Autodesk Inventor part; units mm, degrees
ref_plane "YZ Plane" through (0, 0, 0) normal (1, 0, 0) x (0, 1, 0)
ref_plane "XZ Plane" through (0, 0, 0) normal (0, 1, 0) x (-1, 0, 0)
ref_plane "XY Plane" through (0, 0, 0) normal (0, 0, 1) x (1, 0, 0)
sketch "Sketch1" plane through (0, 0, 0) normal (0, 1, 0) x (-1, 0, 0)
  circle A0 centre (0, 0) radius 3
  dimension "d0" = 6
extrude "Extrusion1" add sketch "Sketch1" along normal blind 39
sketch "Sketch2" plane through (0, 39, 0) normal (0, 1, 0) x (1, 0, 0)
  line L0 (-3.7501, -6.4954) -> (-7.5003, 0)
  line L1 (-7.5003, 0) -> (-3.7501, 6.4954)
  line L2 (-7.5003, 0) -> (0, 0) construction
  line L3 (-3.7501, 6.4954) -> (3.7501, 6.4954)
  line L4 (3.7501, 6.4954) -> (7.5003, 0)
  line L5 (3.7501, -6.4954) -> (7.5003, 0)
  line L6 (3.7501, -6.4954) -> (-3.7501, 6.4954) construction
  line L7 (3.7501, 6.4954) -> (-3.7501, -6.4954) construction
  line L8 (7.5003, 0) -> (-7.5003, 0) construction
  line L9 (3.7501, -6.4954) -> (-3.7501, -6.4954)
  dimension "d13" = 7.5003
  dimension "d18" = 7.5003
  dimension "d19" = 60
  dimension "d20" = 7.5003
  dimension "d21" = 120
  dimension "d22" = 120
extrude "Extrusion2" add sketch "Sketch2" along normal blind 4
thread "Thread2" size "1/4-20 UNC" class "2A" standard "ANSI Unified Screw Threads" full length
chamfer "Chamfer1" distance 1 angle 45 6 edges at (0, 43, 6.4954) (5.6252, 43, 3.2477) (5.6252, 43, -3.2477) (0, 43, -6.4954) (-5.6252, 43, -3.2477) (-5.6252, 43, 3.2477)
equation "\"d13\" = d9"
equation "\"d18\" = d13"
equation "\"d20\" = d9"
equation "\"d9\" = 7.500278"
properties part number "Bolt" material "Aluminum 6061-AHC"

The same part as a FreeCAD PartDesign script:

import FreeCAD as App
import Part
import Sketcher

V = App.Vector
Q = App.Units.Quantity


def edges_at(feature, points):
    """Names of the edges that pass closest to the given points."""
    edges = feature.Shape.Edges
    near = lambda p: min(range(len(edges)), key=lambda i: edges[i].distToShape(Part.Vertex(*p))[0])
    return sorted({f"Edge{near(p) + 1}" for p in points})

doc = App.newDocument("Part")
body = doc.addObject("PartDesign::Body", "Body")

sketch1 = doc.addObject("Sketcher::SketchObject", "Sketch")
body.addObject(sketch1)
sketch1.AttachmentSupport = (doc.XZ_Plane, [""])
sketch1.MapMode = "FlatFace"
sketch1.addGeometry(Part.Circle(V(0, 0, 0), V(0, 0, 1), 3), False)
sketch1.addConstraint(Sketcher.Constraint("Coincident", 0, 3, -1, 1))
sketch1.addConstraint(Sketcher.Constraint("Diameter", 0, 6.0))
pad1 = doc.addObject("PartDesign::Pad", "Pad")
body.addObject(pad1)
pad1.Profile = sketch1
pad1.Length = 39
pad1.Reversed = True

sketch2 = doc.addObject("Sketcher::SketchObject", "Sketch001")
body.addObject(sketch2)
sketch2.AttachmentSupport = (doc.XZ_Plane, [""])
sketch2.MapMode = "FlatFace"
sketch2.AttachmentOffset = App.Placement(V(0, 0, -39), App.Rotation())
sketch2.addGeometry(Part.LineSegment(V(-8, 0, 0), V(-4, 6, 0)), False)
sketch2.addGeometry(Part.LineSegment(V(-4, 6, 0), V(4, 6, 0)), False)
sketch2.addGeometry(Part.LineSegment(V(4, 6, 0), V(8, 0, 0)), False)
sketch2.addGeometry(Part.LineSegment(V(8, 0, 0), V(4, -6, 0)), False)
sketch2.addGeometry(Part.LineSegment(V(4, -6, 0), V(-4, -6, 0)), False)
sketch2.addGeometry(Part.LineSegment(V(-4, -6, 0), V(-8, 0, 0)), False)
sketch2.addConstraint(Sketcher.Constraint("Coincident", 0, 2, 1, 1))
sketch2.addConstraint(Sketcher.Constraint("Coincident", 1, 2, 2, 1))
sketch2.addConstraint(Sketcher.Constraint("Coincident", 2, 2, 3, 1))
sketch2.addConstraint(Sketcher.Constraint("Coincident", 3, 2, 4, 1))
sketch2.addConstraint(Sketcher.Constraint("Coincident", 4, 2, 5, 1))
sketch2.addConstraint(Sketcher.Constraint("Coincident", 5, 2, 0, 1))
sketch2.addConstraint(Sketcher.Constraint("Horizontal", 1))
sketch2.addConstraint(Sketcher.Constraint("Horizontal", 4))
sketch2.addConstraint(Sketcher.Constraint("Symmetric", 0, 2, 3, 2, -1, 1))
sketch2.addConstraint(Sketcher.Constraint("Symmetric", 2, 2, 5, 2, -1, 1))
sketch2.addConstraint(Sketcher.Constraint("PointOnObject", 2, 2, -1))
sketch2.addConstraint(Sketcher.Constraint("Parallel", 2, 5))
sketch2.addConstraint(Sketcher.Constraint("Vertical", 1, 2, 3, 2))
sketch2.addConstraint(Sketcher.Constraint("Angle", 0, Q("59.9995 deg")))
sketch2.addConstraint(Sketcher.Constraint("DistanceX", 1, 1, 1, 2, 7.5002))
sketch2.addConstraint(Sketcher.Constraint("Distance", 0, 7.5003))
pad2 = doc.addObject("PartDesign::Pad", "Pad001")
body.addObject(pad2)
pad2.Profile = sketch2
pad2.Length = 4
pad2.Reversed = True
doc.recompute()

chamfer = doc.addObject("PartDesign::Chamfer", "Chamfer")
body.addObject(chamfer)
chamfer.Base = (pad2, edges_at(pad2, [
    (0, 43, 6.495),
    (5.625, 43, 3.248),
    (5.625, 43, -3.248),
    (0, 43, -6.495),
    (-5.625, 43, -3.248),
    (-5.625, 43, 3.248),
]))
chamfer.Size = 1

doc.recompute()
